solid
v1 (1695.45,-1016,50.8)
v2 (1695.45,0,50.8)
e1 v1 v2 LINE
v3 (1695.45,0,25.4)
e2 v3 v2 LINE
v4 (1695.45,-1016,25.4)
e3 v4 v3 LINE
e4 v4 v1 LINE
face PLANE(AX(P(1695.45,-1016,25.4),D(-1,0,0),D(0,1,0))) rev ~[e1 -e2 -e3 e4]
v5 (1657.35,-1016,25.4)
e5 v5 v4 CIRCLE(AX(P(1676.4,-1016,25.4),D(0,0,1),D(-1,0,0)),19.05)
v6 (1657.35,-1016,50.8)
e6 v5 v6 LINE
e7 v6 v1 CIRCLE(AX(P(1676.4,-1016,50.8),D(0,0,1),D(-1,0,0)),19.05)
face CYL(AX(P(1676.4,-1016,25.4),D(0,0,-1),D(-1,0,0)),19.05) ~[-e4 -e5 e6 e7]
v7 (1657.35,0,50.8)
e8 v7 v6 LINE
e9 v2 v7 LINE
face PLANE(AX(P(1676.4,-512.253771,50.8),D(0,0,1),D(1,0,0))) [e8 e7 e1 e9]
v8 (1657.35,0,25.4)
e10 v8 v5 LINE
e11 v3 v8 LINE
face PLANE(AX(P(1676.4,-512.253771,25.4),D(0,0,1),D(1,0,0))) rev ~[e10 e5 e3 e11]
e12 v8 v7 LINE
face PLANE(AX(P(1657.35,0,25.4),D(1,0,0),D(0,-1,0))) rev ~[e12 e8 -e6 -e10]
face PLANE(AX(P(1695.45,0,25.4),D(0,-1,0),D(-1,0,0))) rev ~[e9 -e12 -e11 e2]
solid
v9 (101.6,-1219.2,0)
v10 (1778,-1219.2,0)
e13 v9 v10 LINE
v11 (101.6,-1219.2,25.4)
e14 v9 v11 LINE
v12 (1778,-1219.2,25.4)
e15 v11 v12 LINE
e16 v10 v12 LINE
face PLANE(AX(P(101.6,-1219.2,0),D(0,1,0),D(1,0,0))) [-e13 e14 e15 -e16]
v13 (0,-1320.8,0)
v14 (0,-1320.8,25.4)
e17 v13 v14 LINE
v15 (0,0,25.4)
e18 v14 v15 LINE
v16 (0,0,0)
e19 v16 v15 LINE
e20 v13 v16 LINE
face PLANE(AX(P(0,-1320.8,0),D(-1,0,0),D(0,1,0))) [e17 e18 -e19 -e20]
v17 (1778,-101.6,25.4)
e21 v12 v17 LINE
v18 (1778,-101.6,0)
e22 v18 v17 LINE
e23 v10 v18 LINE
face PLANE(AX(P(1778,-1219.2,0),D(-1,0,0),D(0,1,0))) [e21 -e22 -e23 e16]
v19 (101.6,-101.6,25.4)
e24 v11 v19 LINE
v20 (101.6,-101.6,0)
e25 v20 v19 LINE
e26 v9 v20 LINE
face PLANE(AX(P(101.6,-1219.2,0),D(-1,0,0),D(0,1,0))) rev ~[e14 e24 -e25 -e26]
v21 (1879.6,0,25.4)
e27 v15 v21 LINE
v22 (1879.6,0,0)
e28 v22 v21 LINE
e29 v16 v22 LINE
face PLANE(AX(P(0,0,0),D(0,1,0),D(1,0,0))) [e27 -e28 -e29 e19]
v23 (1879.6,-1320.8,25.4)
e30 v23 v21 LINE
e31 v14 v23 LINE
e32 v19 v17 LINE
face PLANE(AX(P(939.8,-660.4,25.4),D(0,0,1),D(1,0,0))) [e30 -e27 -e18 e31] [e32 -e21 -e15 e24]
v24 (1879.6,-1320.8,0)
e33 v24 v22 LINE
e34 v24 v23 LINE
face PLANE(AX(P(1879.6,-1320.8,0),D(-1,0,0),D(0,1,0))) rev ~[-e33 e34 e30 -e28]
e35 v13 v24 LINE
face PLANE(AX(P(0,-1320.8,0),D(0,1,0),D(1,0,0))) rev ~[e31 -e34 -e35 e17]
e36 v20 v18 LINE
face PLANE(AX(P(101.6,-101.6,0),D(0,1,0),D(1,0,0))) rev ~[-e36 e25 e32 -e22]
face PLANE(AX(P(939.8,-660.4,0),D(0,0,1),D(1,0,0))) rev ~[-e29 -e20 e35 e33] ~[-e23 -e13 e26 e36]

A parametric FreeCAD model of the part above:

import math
import FreeCAD as App
import Part
import Sketcher

V = App.Vector
Q = App.Units.Quantity

doc = App.newDocument("Part")
params = doc.addObject("Spreadsheet::Sheet", "Params")
for row, (alias, value) in enumerate([
    ("sketch1_width", "74 in"),
    ("sketch1_width2", "66 in"),
    ("sketch1_height", "52 in"),
    ("sketch1_height2", "44 in"),
    ("pad1_length", "1 in"),
    ("sketch2_height", "40 in"),
    ("sketch2_radius", "0.75 in"),
    ("pad2_length", "1 in"),
], start=1):
    params.set(f"A{row}", alias)
    params.set(f"B{row}", "=" + value)
    params.setAlias(f"B{row}", alias)

body = doc.addObject("PartDesign::Body", "Body")

# Sketch on XY plane
sketch1 = body.newObject("Sketcher::SketchObject", "Sketch")
sketch1.AttachmentSupport = (doc.getObject("XY_Plane"), [""])
sketch1.MapMode = "FlatFace"
sketch1.addGeometry([
    Part.LineSegment(V(0, 0, 0), V(0, -1321, 0)),  # 0
    Part.LineSegment(V(0, -1321, 0), V(1880, -1321, 0)),  # 1
    Part.LineSegment(V(1880, -1321, 0), V(1880, 0, 0)),  # 2
    Part.LineSegment(V(1880, 0, 0), V(0, 0, 0)),  # 3
    Part.LineSegment(V(1778, -1219, 0), V(102, -1219, 0)),  # 4
    Part.LineSegment(V(102, -1219, 0), V(102, -102, 0)),  # 5
    Part.LineSegment(V(102, -102, 0), V(1778, -102, 0)),  # 6
    Part.LineSegment(V(1778, -102, 0), V(1778, -1219, 0)),  # 7
], False)
sketch1.addConstraint([
    Sketcher.Constraint("Coincident", 0, 2, 1, 1),
    Sketcher.Constraint("Coincident", 1, 2, 2, 1),
    Sketcher.Constraint("Coincident", 2, 2, 3, 1),
    Sketcher.Constraint("Coincident", 3, 2, 0, 1),
    Sketcher.Constraint("Coincident", 4, 2, 5, 1),
    Sketcher.Constraint("Coincident", 5, 2, 6, 1),
    Sketcher.Constraint("Coincident", 6, 2, 7, 1),
    Sketcher.Constraint("Coincident", 7, 2, 4, 1),
    Sketcher.Constraint("Vertical", 0),
    Sketcher.Constraint("Horizontal", 1),
    Sketcher.Constraint("Vertical", 2),
    Sketcher.Constraint("Horizontal", 3),
    Sketcher.Constraint("Horizontal", 4),
    Sketcher.Constraint("Vertical", 5),
    Sketcher.Constraint("Horizontal", 6),
    Sketcher.Constraint("Vertical", 7),
    Sketcher.Constraint("Coincident", 3, 2, -1, 1),
    Sketcher.Constraint("DistanceX", 1, 1, 1, 2, Q("74 in")),
    Sketcher.Constraint("DistanceX", 4, 2, 4, 1, Q("66 in")),
    Sketcher.Constraint("DistanceY", 0, 2, 0, 1, Q("52 in")),
    Sketcher.Constraint("DistanceY", 5, 1, 5, 2, Q("44 in")),
    Sketcher.Constraint("DistanceX", -1, 1, 4, 2, Q("4 in")),
    Sketcher.Constraint("DistanceY", 4, 2, -1, 1, Q("48 in")),
])
sketch1.setExpression("Constraints[17]", "Params.sketch1_width")
sketch1.setExpression("Constraints[18]", "Params.sketch1_width2")
sketch1.setExpression("Constraints[19]", "Params.sketch1_height")
sketch1.setExpression("Constraints[20]", "Params.sketch1_height2")
pad1 = body.newObject("PartDesign::Pad", "Pad")
pad1.Profile = sketch1
pad1.setExpression("Length", "Params.pad1_length")
body2 = doc.addObject("PartDesign::Body", "Body001")

# Sketch on XY plane
sketch2 = body2.newObject("Sketcher::SketchObject", "Sketch001")
sketch2.AttachmentSupport = (doc.getObject("XY_Plane001"), [""])
sketch2.MapMode = "FlatFace"
sketch2.AttachmentOffset = App.Placement(V(0, 0, 1 * 25.4), App.Rotation())
sketch2.addGeometry([
    Part.LineSegment(V(1695, 0, 0), V(1657, 0, 0)),
    Part.LineSegment(V(1657, 0, 0), V(1657, -1016, 0)),
    Part.ArcOfCircle(Part.Circle(V(1676, -1016, 0), V(0, 0, 1), 19), math.radians(180), math.radians(360)),
    Part.LineSegment(V(1695, -1016, 0), V(1695, 0, 0)),
], False)
sketch2.addConstraint([
    Sketcher.Constraint("Coincident", 0, 2, 1, 1),
    Sketcher.Constraint("Tangent", 1, 2, 2, 1),
    Sketcher.Constraint("Tangent", 2, 2, 3, 1),
    Sketcher.Constraint("Coincident", 3, 2, 0, 1),
    Sketcher.Constraint("Horizontal", 0),
    Sketcher.Constraint("Vertical", 1),
    Sketcher.Constraint("Vertical", 3),
    Sketcher.Constraint("PointOnObject", 0, 2, -1),
    Sketcher.Constraint("DistanceY", 1, 2, 1, 1, Q("40 in")),
    Sketcher.Constraint("Radius", 2, Q("0.75 in")),
    Sketcher.Constraint("DistanceX", -1, 1, 2, 3, Q("66 in")),
])
sketch2.setExpression("Constraints[8]", "Params.sketch2_height")
sketch2.setExpression("Constraints[9]", "Params.sketch2_radius")
pad2 = body2.newObject("PartDesign::Pad", "Pad001")
pad2.Profile = sketch2
pad2.setExpression("Length", "Params.pad2_length")

doc.recompute()
